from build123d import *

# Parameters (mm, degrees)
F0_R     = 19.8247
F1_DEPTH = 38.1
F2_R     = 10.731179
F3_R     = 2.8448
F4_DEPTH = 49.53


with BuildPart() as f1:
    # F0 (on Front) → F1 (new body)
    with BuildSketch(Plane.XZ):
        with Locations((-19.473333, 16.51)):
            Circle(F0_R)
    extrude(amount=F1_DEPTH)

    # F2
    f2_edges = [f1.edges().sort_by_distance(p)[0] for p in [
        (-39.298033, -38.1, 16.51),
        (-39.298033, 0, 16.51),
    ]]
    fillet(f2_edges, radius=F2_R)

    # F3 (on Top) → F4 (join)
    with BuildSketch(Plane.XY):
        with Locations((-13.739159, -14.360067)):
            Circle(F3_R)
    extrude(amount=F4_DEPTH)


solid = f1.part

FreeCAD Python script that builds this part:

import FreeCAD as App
import Part
import Sketcher
Q = App.Units.Quantity


def edges_at(feature, points):
    """Names of the edges that pass closest to the given points."""
    edges = feature.Shape.Edges
    near = lambda p: min(range(len(edges)), key=lambda i: edges[i].distToShape(Part.Vertex(*p))[0])
    return sorted({f"Edge{near(p) + 1}" for p in points})

doc = App.newDocument("Part")
body = doc.addObject("PartDesign::Body", "Body")

sketch1 = doc.addObject("Sketcher::SketchObject", "Sketch")
body.addObject(sketch1)
sketch1.AttachmentSupport = (doc.XZ_Plane, [""])
sketch1.MapMode = "FlatFace"
sketch1.addGeometry(Part.Circle(App.Vector(-19, 17, 0), App.Vector(0, 0, 1), 20), False)
sketch1.addConstraint(Sketcher.Constraint("Diameter", 0, Q("1.561 in")))
sketch1.addConstraint(Sketcher.Constraint("DistanceY", -1, 1, 0, 3, Q("0.65 in")))
sketch1.addConstraint(Sketcher.Constraint("DistanceX", 0, 3, -1, 1, Q("19.473333 mm")))
pad1 = doc.addObject("PartDesign::Pad", "Pad")
body.addObject(pad1)
pad1.Profile = sketch1
pad1.Length = Q("1.5 in")
doc.recompute()

fillet = doc.addObject("PartDesign::Fillet", "Fillet")
body.addObject(fillet)
fillet.Base = (pad1, edges_at(pad1, [(-39.298, -38.1, 16.51), (-39.298, 0, 16.51)]))
fillet.Radius = 10.731179

sketch2 = doc.addObject("Sketcher::SketchObject", "Sketch001")
body.addObject(sketch2)
sketch2.AttachmentSupport = (doc.XY_Plane, [""])
sketch2.MapMode = "FlatFace"
sketch2.addGeometry(Part.Circle(App.Vector(-13.7, -14.4, 0), App.Vector(0, 0, 1), 2.8), False)
sketch2.addConstraint(Sketcher.Constraint("Diameter", 0, Q("0.224 in")))
sketch2.addConstraint(Sketcher.Constraint("DistanceX", 0, 3, -1, 1, Q("13.739159 mm")))
sketch2.addConstraint(Sketcher.Constraint("DistanceY", 0, 3, -1, 1, Q("14.360067 mm")))
pad2 = doc.addObject("PartDesign::Pad", "Pad001")
body.addObject(pad2)
pad2.Profile = sketch2
pad2.Length = Q("1.95 in")

doc.recompute()
